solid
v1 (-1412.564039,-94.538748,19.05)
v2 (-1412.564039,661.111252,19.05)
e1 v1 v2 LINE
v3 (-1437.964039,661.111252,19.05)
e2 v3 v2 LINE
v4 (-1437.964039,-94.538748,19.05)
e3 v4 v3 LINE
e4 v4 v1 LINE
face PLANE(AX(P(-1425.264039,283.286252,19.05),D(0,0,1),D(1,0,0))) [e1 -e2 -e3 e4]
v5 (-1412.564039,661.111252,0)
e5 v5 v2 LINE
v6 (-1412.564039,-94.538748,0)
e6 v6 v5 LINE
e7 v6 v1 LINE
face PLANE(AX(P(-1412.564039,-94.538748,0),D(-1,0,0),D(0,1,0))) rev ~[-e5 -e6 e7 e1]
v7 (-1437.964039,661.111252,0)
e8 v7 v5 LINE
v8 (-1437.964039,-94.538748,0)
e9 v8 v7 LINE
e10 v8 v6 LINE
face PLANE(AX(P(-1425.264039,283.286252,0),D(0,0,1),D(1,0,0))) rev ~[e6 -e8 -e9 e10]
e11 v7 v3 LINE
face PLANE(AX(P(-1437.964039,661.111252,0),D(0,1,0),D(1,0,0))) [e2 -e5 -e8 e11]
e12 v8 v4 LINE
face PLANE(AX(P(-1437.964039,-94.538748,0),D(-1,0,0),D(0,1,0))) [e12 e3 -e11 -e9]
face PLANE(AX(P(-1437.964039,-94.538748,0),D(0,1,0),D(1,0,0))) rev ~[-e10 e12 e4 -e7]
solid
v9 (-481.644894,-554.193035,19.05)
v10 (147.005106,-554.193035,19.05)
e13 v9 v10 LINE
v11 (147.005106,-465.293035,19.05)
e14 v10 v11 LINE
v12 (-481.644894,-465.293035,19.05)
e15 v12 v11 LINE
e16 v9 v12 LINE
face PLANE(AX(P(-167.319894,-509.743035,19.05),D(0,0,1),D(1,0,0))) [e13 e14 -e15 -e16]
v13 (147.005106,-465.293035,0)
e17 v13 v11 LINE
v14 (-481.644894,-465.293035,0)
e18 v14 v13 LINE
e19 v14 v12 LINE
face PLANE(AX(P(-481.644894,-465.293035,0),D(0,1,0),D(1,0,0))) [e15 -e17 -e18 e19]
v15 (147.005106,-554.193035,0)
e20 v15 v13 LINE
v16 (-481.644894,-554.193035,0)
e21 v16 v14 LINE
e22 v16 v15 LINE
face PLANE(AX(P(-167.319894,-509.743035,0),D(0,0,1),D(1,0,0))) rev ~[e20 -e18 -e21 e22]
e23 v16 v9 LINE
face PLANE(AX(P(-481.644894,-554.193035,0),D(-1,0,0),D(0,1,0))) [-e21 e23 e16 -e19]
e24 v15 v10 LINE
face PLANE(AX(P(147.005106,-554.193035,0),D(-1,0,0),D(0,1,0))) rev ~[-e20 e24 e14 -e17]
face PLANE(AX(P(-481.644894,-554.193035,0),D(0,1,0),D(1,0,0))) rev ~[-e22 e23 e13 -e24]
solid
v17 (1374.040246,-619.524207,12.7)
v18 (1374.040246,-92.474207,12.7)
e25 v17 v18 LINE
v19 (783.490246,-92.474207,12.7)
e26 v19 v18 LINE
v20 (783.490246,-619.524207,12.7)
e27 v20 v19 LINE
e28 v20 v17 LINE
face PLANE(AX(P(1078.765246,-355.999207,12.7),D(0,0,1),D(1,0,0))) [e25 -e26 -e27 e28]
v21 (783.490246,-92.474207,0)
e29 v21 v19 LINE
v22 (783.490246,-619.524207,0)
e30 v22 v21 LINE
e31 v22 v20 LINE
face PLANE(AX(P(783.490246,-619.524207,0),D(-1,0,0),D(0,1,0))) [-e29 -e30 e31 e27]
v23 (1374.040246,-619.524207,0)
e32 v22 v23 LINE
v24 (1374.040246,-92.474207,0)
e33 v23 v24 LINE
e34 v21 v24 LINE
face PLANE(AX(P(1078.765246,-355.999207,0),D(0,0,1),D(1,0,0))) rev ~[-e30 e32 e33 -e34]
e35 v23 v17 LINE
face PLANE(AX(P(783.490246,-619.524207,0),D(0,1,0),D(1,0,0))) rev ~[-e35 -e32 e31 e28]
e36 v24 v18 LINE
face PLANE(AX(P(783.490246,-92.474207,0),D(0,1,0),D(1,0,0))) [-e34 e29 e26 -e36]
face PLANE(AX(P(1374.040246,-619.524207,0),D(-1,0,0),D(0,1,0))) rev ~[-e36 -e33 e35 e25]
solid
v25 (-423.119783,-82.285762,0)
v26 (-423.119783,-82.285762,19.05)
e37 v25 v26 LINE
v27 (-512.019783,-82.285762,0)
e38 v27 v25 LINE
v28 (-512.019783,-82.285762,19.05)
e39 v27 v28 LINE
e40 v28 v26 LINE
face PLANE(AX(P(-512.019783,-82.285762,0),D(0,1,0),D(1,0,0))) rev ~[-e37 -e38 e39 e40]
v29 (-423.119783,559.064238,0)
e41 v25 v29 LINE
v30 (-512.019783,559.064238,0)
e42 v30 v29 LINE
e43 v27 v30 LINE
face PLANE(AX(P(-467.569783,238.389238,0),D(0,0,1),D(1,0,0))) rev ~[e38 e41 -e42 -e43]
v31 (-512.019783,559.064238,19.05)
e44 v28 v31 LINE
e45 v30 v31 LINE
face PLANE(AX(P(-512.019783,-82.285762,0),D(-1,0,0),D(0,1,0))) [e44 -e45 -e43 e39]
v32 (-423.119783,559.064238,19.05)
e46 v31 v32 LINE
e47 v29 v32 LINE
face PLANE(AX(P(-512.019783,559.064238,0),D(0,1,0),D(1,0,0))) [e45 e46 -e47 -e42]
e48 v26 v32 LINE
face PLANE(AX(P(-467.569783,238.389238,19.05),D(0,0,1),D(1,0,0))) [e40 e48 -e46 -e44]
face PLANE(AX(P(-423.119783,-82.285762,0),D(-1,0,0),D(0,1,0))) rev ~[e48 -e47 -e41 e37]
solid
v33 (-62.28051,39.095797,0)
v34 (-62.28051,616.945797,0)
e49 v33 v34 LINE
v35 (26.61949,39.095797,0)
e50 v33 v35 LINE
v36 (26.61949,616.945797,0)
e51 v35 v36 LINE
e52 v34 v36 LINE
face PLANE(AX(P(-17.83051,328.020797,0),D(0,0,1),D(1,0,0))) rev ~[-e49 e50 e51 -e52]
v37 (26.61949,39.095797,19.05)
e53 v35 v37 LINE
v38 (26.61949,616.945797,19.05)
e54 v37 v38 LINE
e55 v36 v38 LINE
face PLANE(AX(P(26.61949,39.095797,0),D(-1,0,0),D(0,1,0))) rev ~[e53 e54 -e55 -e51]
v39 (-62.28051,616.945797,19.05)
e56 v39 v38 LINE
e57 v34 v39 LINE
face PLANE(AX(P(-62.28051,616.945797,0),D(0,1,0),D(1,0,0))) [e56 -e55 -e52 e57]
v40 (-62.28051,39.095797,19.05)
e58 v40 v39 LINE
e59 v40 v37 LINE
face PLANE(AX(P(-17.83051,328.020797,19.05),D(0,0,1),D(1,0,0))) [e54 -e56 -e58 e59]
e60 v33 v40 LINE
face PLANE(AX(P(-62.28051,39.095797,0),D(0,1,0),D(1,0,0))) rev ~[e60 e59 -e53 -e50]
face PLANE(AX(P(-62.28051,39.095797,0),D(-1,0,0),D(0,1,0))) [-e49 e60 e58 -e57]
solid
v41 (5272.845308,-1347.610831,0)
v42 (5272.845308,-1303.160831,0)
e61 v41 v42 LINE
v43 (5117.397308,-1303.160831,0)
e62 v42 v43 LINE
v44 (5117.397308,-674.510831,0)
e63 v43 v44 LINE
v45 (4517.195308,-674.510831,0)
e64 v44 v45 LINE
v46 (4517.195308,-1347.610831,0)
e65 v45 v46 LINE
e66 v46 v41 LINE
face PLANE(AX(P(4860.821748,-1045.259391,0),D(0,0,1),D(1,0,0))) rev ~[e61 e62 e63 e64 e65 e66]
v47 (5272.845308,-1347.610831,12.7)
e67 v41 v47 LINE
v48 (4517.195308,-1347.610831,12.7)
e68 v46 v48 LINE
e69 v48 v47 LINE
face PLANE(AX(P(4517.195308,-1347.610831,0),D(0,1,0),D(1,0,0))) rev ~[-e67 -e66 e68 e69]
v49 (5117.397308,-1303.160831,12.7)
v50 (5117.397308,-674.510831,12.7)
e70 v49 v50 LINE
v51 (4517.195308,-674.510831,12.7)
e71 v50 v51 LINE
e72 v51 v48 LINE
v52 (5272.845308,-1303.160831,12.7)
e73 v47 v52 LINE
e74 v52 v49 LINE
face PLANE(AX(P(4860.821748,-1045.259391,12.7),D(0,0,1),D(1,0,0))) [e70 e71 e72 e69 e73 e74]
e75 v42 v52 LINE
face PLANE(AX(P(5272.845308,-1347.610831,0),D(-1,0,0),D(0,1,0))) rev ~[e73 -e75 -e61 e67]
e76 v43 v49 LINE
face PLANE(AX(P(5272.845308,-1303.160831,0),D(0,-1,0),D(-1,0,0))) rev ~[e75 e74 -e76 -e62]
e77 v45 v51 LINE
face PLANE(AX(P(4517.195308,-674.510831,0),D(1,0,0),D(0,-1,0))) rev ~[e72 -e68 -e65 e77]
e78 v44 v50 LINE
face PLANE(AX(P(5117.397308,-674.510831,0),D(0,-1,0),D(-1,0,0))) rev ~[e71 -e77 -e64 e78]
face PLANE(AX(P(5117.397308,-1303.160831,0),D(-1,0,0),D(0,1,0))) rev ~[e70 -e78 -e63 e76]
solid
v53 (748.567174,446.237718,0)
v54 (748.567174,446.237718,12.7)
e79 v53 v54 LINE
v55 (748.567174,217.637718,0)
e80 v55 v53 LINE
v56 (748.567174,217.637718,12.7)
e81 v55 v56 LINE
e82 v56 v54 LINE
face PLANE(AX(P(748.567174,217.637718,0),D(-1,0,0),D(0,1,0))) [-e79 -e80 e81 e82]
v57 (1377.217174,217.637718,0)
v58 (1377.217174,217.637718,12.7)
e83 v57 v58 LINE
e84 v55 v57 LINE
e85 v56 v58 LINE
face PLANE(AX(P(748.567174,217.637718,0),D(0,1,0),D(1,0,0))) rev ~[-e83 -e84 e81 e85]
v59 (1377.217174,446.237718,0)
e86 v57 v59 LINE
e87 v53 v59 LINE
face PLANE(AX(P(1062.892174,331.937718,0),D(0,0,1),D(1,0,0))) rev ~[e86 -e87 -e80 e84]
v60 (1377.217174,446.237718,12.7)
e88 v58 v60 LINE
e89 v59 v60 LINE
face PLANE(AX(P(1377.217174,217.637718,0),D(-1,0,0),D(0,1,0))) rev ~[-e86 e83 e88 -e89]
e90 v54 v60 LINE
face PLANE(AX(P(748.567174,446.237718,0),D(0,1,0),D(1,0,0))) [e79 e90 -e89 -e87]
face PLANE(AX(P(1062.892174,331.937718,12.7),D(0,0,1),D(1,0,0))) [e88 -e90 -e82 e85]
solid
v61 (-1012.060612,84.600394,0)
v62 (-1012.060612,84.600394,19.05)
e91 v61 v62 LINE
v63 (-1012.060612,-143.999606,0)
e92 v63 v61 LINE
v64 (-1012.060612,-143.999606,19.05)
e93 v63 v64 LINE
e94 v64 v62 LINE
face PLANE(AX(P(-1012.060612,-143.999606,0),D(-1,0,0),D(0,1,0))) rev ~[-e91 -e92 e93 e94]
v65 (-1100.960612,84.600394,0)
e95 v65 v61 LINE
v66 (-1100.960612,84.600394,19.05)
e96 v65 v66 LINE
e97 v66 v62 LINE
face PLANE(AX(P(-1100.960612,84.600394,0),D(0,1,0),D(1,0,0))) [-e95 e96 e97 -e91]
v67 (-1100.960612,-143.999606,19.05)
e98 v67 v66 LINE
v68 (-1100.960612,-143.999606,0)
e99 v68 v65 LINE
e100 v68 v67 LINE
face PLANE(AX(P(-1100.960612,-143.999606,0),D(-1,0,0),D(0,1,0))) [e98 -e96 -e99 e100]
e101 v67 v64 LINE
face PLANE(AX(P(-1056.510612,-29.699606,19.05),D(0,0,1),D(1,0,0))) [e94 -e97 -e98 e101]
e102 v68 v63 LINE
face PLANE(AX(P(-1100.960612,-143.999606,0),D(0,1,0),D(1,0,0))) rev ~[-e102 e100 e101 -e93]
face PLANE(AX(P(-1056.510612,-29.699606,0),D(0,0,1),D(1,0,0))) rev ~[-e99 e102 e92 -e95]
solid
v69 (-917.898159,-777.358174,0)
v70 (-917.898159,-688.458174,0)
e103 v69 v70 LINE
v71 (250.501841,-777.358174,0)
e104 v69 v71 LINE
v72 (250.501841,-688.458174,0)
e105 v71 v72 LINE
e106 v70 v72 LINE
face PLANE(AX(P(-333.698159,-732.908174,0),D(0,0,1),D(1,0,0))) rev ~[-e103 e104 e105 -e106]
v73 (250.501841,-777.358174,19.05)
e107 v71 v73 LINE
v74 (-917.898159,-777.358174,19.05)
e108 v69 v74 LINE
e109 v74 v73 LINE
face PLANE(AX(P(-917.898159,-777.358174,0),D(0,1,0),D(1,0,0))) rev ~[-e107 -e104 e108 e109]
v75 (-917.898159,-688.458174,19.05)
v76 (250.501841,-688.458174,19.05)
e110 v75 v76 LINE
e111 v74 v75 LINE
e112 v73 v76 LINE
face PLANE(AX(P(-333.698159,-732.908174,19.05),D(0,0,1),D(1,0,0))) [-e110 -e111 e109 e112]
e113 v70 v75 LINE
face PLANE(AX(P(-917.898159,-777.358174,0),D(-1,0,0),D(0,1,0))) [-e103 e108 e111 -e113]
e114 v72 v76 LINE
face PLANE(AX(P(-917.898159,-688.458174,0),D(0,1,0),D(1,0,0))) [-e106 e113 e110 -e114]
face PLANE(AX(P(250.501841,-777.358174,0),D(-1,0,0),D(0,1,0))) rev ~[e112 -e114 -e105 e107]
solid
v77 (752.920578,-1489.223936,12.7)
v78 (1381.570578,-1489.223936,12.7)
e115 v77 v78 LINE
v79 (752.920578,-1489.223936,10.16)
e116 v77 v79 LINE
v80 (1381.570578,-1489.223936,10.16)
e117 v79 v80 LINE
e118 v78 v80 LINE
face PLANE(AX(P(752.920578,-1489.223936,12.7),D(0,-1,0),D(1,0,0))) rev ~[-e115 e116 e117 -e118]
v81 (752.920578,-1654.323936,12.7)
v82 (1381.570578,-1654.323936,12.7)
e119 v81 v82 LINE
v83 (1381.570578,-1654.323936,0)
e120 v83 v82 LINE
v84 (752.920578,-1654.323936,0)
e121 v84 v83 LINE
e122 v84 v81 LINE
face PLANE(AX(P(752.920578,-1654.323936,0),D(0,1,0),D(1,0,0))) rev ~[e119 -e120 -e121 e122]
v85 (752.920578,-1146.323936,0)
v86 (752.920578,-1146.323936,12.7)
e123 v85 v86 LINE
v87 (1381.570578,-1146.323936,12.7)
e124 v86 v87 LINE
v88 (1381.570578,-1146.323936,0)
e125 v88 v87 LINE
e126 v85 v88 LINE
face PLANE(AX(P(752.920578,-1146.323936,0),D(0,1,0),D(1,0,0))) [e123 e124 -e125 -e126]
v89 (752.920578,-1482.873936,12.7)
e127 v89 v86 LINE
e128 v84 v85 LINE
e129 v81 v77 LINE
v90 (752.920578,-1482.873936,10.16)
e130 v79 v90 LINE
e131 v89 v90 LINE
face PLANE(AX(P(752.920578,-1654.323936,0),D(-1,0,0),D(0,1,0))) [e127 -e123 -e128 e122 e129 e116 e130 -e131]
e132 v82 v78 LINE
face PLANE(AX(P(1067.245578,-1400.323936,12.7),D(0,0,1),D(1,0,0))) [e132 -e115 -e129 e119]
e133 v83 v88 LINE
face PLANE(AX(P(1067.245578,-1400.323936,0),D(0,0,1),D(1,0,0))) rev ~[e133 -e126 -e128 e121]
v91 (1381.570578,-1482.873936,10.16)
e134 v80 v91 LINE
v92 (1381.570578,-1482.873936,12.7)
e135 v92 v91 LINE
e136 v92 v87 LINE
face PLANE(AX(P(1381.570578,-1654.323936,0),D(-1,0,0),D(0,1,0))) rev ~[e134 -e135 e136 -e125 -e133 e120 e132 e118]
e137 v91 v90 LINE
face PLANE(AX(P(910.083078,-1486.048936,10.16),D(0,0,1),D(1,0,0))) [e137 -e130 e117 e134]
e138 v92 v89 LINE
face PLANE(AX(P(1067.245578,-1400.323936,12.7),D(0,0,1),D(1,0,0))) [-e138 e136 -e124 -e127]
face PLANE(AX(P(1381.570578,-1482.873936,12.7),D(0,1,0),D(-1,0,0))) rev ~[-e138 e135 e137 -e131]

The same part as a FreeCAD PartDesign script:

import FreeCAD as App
import Part
import Sketcher
Q = App.Units.Quantity


def add_polygon(sketch, points):
    """Adds a closed chain of lines whose ends are joined by coincident constraints."""
    first, n = sketch.GeometryCount, len(points)
    for a, b in zip(points, points[1:] + points[:1]):
        sketch.addGeometry(Part.LineSegment(App.Vector(*a, 0), App.Vector(*b, 0)), False)
    for i in range(n):
        sketch.addConstraint(Sketcher.Constraint("Coincident", first + i, 2, first + (i + 1) % n, 1))

doc = App.newDocument("Part")
params = doc.addObject("Spreadsheet::Sheet", "Params")
for row, (alias, value) in enumerate([
    ("sketch1_width", "46 in"),
    ("sketch1_width2", "3.5 in"),
    ("sketch1_width3", "24.75 in"),
    ("sketch1_height", "22.75 in"),
    ("pad1_length", "0.75 in"),
    ("sketch2_width", "1 in"),
    ("sketch2_height", "9 in"),
    ("sketch2_width2", "3.5 in"),
    ("sketch2_height2", "25.25 in"),
    ("sketch2_height3", "29.75 in"),
    ("pad2_length", "0.75 in"),
    ("sketch3_height", "9 in"),
    ("sketch3_height2", "20 in"),
    ("sketch3_width", "24.75 in"),
    ("sketch3_width2", "23.25 in"),
    ("sketch3_height3", "20.75 in"),
    ("pad3_length", "0.5 in"),
    ("sketch4_width", "24.75 in"),
    ("sketch4_height", "0.25 in"),
    ("pocket1_length", "0.1 in"),
    ("sketch5_height", "26.5 in"),
    ("sketch5_width", "23.63 in"),
    ("sketch5_width2", "29.75 in"),
    ("sketch5_height2", "1.75 in"),
    ("pad4_length", "0.5 in"),
], start=1):
    params.set(f"A{row}", alias)
    params.set(f"B{row}", "=" + value)
    params.setAlias(f"B{row}", alias)

body = doc.addObject("PartDesign::Body", "Body")
body.AllowCompound = True

# Sketch on XY plane
sketch1 = body.newObject("Sketcher::SketchObject", "Sketch")
sketch1.AttachmentSupport = (doc.getObject("XY_Plane"), [""])
sketch1.MapMode = "FlatFace"
add_polygon(sketch1, [(-62.28051, 616.945797), (-62.28051, 39.095797), (26.61949, 39.095797), (26.61949, 616.945797)])  # lines 0-3
add_polygon(sketch1, [(-481.644894, -465.293035), (-481.644894, -554.193035), (147.005106, -554.193035), (147.005106, -465.293035)])  # lines 4-7
add_polygon(sketch1, [(-917.898159, -688.458174), (-917.898159, -777.358174), (250.501841, -777.358174), (250.501841, -688.458174)])  # lines 8-11
sketch1.addConstraint([
    Sketcher.Constraint("Vertical", 0),
    Sketcher.Constraint("Horizontal", 1),
    Sketcher.Constraint("Vertical", 2),
    Sketcher.Constraint("Horizontal", 3),
    Sketcher.Constraint("Vertical", 4),
    Sketcher.Constraint("Horizontal", 5),
    Sketcher.Constraint("Vertical", 6),
    Sketcher.Constraint("Horizontal", 7),
    Sketcher.Constraint("Vertical", 8),
    Sketcher.Constraint("Horizontal", 9),
    Sketcher.Constraint("Vertical", 10),
    Sketcher.Constraint("Horizontal", 11),
    Sketcher.Constraint("Equal", 3, 4),
    Sketcher.Constraint("Equal", 6, 8),
    Sketcher.Constraint("DistanceX", 9, 1, 9, 2, Q("46 in")),
    Sketcher.Constraint("DistanceX", 1, 1, 1, 2, Q("3.5 in")),
    Sketcher.Constraint("DistanceX", 5, 1, 5, 2, Q("24.75 in")),
    Sketcher.Constraint("DistanceY", 0, 2, 0, 1, Q("22.75 in")),
    Sketcher.Constraint("DistanceX", 0, 2, -1, 1, Q("62.28051 mm")),
    Sketcher.Constraint("DistanceX", 8, 2, -1, 1, Q("917.898159 mm")),
    Sketcher.Constraint("DistanceY", 4, 2, 0, 2, Q("593.288832 mm")),
    Sketcher.Constraint("DistanceY", 8, 2, 4, 2, Q("223.165139 mm")),
    Sketcher.Constraint("DistanceY", -1, 1, 0, 2, Q("39.095797 mm")),
    Sketcher.Constraint("DistanceX", 4, 2, -1, 1, Q("481.644894 mm")),
])
sketch1.setExpression("Constraints[26]", "Params.sketch1_width")
sketch1.setExpression("Constraints[27]", "Params.sketch1_width2")
sketch1.setExpression("Constraints[28]", "Params.sketch1_width3")
sketch1.setExpression("Constraints[29]", "Params.sketch1_height")
pad1 = body.newObject("PartDesign::Pad", "Pad")
pad1.Profile = sketch1
pad1.setExpression("Length", "Params.pad1_length")
body2 = doc.addObject("PartDesign::Body", "Body001")
body2.AllowCompound = True

# Sketch on XY plane
sketch2 = body2.newObject("Sketcher::SketchObject", "Sketch001")
sketch2.AttachmentSupport = (doc.getObject("XY_Plane001"), [""])
sketch2.MapMode = "FlatFace"
add_polygon(sketch2, [(-512.019783, 559.064238), (-512.019783, -82.285762), (-423.119783, -82.285762), (-423.119783, 559.064238)])  # lines 0-3
add_polygon(sketch2, [(-1100.960612, 84.600394), (-1100.960612, -143.999606), (-1012.060612, -143.999606), (-1012.060612, 84.600394)])  # lines 4-7
add_polygon(sketch2, [(-1437.964039, 661.111252), (-1437.964039, -94.538748), (-1412.564039, -94.538748), (-1412.564039, 661.111252)])  # lines 8-11
sketch2.addConstraint([
    Sketcher.Constraint("Vertical", 0),
    Sketcher.Constraint("Horizontal", 1),
    Sketcher.Constraint("Vertical", 2),
    Sketcher.Constraint("Horizontal", 3),
    Sketcher.Constraint("Vertical", 4),
    Sketcher.Constraint("Horizontal", 5),
    Sketcher.Constraint("Vertical", 6),
    Sketcher.Constraint("Horizontal", 7),
    Sketcher.Constraint("Vertical", 8),
    Sketcher.Constraint("Horizontal", 9),
    Sketcher.Constraint("Vertical", 10),
    Sketcher.Constraint("Horizontal", 11),
    Sketcher.Constraint("Equal", 3, 5),
    Sketcher.Constraint("DistanceX", 9, 1, 9, 2, Q("1 in")),
    Sketcher.Constraint("DistanceY", 4, 2, 4, 1, Q("9 in")),
    Sketcher.Constraint("DistanceX", 1, 1, 1, 2, Q("3.5 in")),
    Sketcher.Constraint("DistanceY", 0, 2, 0, 1, Q("25.25 in")),
    Sketcher.Constraint("DistanceY", 8, 2, 8, 1, Q("29.75 in")),
    Sketcher.Constraint("DistanceY", -1, 1, 2, 2, Q("559.064238 mm")),
    Sketcher.Constraint("DistanceX", 4, 2, -1, 1, Q("1100.960612 mm")),
    Sketcher.Constraint("DistanceX", 8, 2, -1, 1, Q("1437.964039 mm")),
    Sketcher.Constraint("DistanceY", 8, 2, -1, 1, Q("94.538748 mm")),
    Sketcher.Constraint("DistanceX", 4, 2, 0, 2, Q("588.940829 mm")),
    Sketcher.Constraint("DistanceY", 4, 2, 8, 2, Q("49.460858 mm")),
])
sketch2.setExpression("Constraints[25]", "Params.sketch2_width")
sketch2.setExpression("Constraints[26]", "Params.sketch2_height")
sketch2.setExpression("Constraints[27]", "Params.sketch2_width2")
sketch2.setExpression("Constraints[28]", "Params.sketch2_height2")
sketch2.setExpression("Constraints[29]", "Params.sketch2_height3")
pad2 = body2.newObject("PartDesign::Pad", "Pad001")
pad2.Profile = sketch2
pad2.setExpression("Length", "Params.pad2_length")
body3 = doc.addObject("PartDesign::Body", "Body002")
body3.AllowCompound = True

# Sketch on XY plane
sketch3 = body3.newObject("Sketcher::SketchObject", "Sketch002")
sketch3.AttachmentSupport = (doc.getObject("XY_Plane002"), [""])
sketch3.MapMode = "FlatFace"
add_polygon(sketch3, [(748.567174, 446.237718), (748.567174, 217.637718), (1377.217174, 217.637718), (1377.217174, 446.237718)])  # lines 0-3
add_polygon(sketch3, [(783.490246, -92.474207), (783.490246, -619.524207), (1374.040246, -619.524207), (1374.040246, -92.474207)])  # lines 4-7
add_polygon(sketch3, [(752.920578, -1146.323936), (752.920578, -1654.323936), (1381.570578, -1654.323936), (1381.570578, -1146.323936)])  # lines 8-11
sketch3.addConstraint([
    Sketcher.Constraint("Vertical", 0),
    Sketcher.Constraint("Horizontal", 1),
    Sketcher.Constraint("Vertical", 2),
    Sketcher.Constraint("Horizontal", 3),
    Sketcher.Constraint("Vertical", 4),
    Sketcher.Constraint("Horizontal", 5),
    Sketcher.Constraint("Vertical", 6),
    Sketcher.Constraint("Horizontal", 7),
    Sketcher.Constraint("Vertical", 8),
    Sketcher.Constraint("Horizontal", 9),
    Sketcher.Constraint("Vertical", 10),
    Sketcher.Constraint("Horizontal", 11),
    Sketcher.Constraint("Equal", 3, 9),
    Sketcher.Constraint("DistanceY", 0, 2, 0, 1, Q("9 in")),
    Sketcher.Constraint("DistanceY", 8, 2, 8, 1, Q("20 in")),
    Sketcher.Constraint("DistanceX", 1, 1, 1, 2, Q("24.75 in")),
    Sketcher.Constraint("DistanceX", 5, 1, 5, 2, Q("23.25 in")),
    Sketcher.Constraint("DistanceY", 4, 2, 4, 1, Q("20.75 in")),
    Sketcher.Constraint("DistanceY", -1, 1, 0, 2, Q("217.637718 mm")),
    Sketcher.Constraint("DistanceX", -1, 1, 8, 2, Q("752.920578 mm")),
    Sketcher.Constraint("DistanceX", 0, 2, 4, 2, Q("34.923072 mm")),
    Sketcher.Constraint("DistanceY", 8, 2, 4, 2, Q("1034.799729 mm")),
    Sketcher.Constraint("DistanceX", 8, 2, 5, 2, Q("621.119668 mm")),
    Sketcher.Constraint("DistanceY", 4, 2, -1, 1, Q("619.524207 mm")),
])
sketch3.setExpression("Constraints[25]", "Params.sketch3_height")
sketch3.setExpression("Constraints[26]", "Params.sketch3_height2")
sketch3.setExpression("Constraints[27]", "Params.sketch3_width")
sketch3.setExpression("Constraints[28]", "Params.sketch3_width2")
sketch3.setExpression("Constraints[29]", "Params.sketch3_height3")
pad3 = body3.newObject("PartDesign::Pad", "Pad002")
pad3.Profile = sketch3
pad3.setExpression("Length", "Params.pad3_length")

# Sketch on XY plane
sketch4 = body3.newObject("Sketcher::SketchObject", "Sketch003")
sketch4.AttachmentSupport = (doc.getObject("XY_Plane002"), [""])
sketch4.MapMode = "FlatFace"
sketch4.AttachmentOffset = App.Placement(App.Vector(0, 0, 0.5 * 25.4), App.Rotation())
add_polygon(sketch4, [(752.920578, -1482.873936), (752.920578, -1489.223936), (1381.570578, -1489.223936), (1381.570578, -1482.873936)])  # lines 0-3
sketch4.addConstraint([
    Sketcher.Constraint("Vertical", 0),
    Sketcher.Constraint("Horizontal", 1),
    Sketcher.Constraint("Vertical", 2),
    Sketcher.Constraint("Horizontal", 3),
    Sketcher.Constraint("DistanceX", 1, 1, 1, 2, Q("24.75 in")),
    Sketcher.Constraint("DistanceY", 0, 2, 0, 1, Q("0.25 in")),
    Sketcher.Constraint("DistanceX", -1, 1, 0, 2, Q("752.920578 mm")),
    Sketcher.Constraint("DistanceY", 0, 2, -1, 1, Q("1489.223936 mm")),
])
sketch4.setExpression("Constraints[8]", "Params.sketch4_width")
sketch4.setExpression("Constraints[9]", "Params.sketch4_height")
pocket1 = body3.newObject("PartDesign::Pocket", "Pocket")
pocket1.Profile = sketch4
pocket1.setExpression("Length", "Params.pocket1_length")
body4 = doc.addObject("PartDesign::Body", "Body003")

# Sketch on XY plane
sketch5 = body4.newObject("Sketcher::SketchObject", "Sketch004")
sketch5.AttachmentSupport = (doc.getObject("XY_Plane003"), [""])
sketch5.MapMode = "FlatFace"
add_polygon(sketch5, [(5117.397308, -674.510831), (4517.195308, -674.510831), (4517.195308, -1347.610831), (5272.845308, -1347.610831), (5272.845308, -1303.160831), (5117.397308, -1303.160831)])  # lines 0-5
sketch5.addConstraint([
    Sketcher.Constraint("Horizontal", 0),
    Sketcher.Constraint("Vertical", 1),
    Sketcher.Constraint("Horizontal", 2),
    Sketcher.Constraint("Vertical", 3),
    Sketcher.Constraint("Horizontal", 4),
    Sketcher.Constraint("Vertical", 5),
    Sketcher.Constraint("DistanceY", 1, 2, 1, 1, Q("26.5 in")),
    Sketcher.Constraint("DistanceX", 0, 2, 0, 1, Q("23.63 in")),
    Sketcher.Constraint("DistanceX", 2, 1, 2, 2, Q("29.75 in")),
    Sketcher.Constraint("DistanceY", 3, 1, 3, 2, Q("1.75 in")),
    Sketcher.Constraint("DistanceX", -1, 1, 0, 2, Q("4517.195308 mm")),
    Sketcher.Constraint("DistanceY", 0, 2, -1, 1, Q("674.510831 mm")),
])
sketch5.setExpression("Constraints[12]", "Params.sketch5_height")
sketch5.setExpression("Constraints[13]", "Params.sketch5_width")
sketch5.setExpression("Constraints[14]", "Params.sketch5_width2")
sketch5.setExpression("Constraints[15]", "Params.sketch5_height2")
pad4 = body4.newObject("PartDesign::Pad", "Pad003")
pad4.Profile = sketch5
pad4.setExpression("Length", "Params.pad4_length")

doc.recompute()
